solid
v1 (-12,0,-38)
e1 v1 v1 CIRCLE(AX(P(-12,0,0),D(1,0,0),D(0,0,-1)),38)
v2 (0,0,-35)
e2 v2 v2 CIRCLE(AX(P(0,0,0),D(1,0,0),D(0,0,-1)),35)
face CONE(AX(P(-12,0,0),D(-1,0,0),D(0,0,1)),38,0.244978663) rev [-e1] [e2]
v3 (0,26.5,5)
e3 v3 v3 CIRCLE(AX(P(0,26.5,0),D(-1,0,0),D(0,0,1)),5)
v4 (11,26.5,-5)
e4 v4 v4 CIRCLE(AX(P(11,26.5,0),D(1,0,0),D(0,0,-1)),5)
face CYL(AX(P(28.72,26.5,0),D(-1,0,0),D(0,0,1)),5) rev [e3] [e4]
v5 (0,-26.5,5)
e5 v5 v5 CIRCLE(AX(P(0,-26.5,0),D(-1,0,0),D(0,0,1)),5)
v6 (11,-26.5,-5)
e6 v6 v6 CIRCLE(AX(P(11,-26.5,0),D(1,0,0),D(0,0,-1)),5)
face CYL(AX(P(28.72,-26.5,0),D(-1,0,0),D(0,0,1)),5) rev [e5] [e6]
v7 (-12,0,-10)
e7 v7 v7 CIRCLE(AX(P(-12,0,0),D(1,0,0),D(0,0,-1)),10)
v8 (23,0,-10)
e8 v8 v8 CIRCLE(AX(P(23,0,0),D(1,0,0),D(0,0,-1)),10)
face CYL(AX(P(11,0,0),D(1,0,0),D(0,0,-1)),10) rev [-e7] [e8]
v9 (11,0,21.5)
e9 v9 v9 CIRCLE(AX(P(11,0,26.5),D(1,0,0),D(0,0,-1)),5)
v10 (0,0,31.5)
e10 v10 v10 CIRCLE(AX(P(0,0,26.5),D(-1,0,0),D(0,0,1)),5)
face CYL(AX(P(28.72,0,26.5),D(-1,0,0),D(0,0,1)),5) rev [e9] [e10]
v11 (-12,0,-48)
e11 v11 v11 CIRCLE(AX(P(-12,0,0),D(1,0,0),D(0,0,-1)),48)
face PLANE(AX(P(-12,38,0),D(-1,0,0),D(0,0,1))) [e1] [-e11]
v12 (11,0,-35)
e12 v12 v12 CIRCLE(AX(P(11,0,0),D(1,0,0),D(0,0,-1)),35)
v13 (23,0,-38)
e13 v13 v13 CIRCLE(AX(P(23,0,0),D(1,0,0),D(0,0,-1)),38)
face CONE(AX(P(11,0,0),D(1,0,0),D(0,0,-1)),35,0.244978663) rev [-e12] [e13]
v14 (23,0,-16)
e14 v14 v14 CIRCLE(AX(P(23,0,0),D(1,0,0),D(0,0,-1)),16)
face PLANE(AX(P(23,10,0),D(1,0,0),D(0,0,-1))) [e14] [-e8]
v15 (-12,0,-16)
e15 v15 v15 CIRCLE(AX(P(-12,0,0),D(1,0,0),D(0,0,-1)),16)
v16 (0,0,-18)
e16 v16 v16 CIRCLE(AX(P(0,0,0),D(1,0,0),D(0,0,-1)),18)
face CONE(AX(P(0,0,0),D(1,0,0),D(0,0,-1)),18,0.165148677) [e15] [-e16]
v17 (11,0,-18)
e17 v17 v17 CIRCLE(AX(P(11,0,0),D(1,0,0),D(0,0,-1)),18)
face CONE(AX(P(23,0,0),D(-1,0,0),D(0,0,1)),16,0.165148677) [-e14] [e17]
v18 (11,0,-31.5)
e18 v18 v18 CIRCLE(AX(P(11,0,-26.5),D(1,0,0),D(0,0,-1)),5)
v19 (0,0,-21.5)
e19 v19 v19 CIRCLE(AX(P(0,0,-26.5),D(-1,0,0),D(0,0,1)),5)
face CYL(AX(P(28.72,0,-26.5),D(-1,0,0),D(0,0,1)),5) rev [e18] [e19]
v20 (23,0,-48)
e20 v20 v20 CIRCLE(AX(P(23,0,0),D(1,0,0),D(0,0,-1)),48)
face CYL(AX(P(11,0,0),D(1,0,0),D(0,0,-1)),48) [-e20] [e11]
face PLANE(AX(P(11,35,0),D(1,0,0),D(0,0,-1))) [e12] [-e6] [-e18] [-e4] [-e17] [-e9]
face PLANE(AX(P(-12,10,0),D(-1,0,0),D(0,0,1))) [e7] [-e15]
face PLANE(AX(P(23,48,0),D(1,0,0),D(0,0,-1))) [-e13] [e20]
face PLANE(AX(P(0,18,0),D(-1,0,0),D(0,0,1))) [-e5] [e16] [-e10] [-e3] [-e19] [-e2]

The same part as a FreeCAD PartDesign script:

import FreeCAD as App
import Part
import Sketcher
from FreeCAD import Vector
Q = App.Units.Quantity


def add_polygon(sketch, points):
    """Adds a closed chain of lines whose ends are joined by coincident constraints."""
    first, n = sketch.GeometryCount, len(points)
    for a, b in zip(points, points[1:] + points[:1]):
        sketch.addGeometry(Part.LineSegment(App.Vector(*a, 0), App.Vector(*b, 0)), False)
    for i in range(n):
        sketch.addConstraint(Sketcher.Constraint("Coincident", first + i, 2, first + (i + 1) % n, 1))

doc = App.newDocument("Part")
body = doc.addObject("PartDesign::Body", "Body")

sketch1 = body.newObject("Sketcher::SketchObject", "Sketch")
sketch1.AttachmentSupport = (doc.getObject("XY_Plane"), [""])
sketch1.MapMode = "FlatFace"
add_polygon(sketch1, [(0, 10), (0, 0), (11, 0), (11, 10), (23, 10), (23, 16), (11, 18), (11, 35), (23, 38), (23, 48), (-12, 48), (-12, 38), (0, 35), (0, 18), (-12, 16), (-12, 10)])
sketch1.addConstraint([
    Sketcher.Constraint("Vertical", 0),
    Sketcher.Constraint("Horizontal", 1),
    Sketcher.Constraint("Vertical", 2),
    Sketcher.Constraint("Horizontal", 3),
    Sketcher.Constraint("Vertical", 4),
    Sketcher.Constraint("Vertical", 6),
    Sketcher.Constraint("Vertical", 8),
    Sketcher.Constraint("Horizontal", 9),
    Sketcher.Constraint("Vertical", 10),
    Sketcher.Constraint("Vertical", 12),
    Sketcher.Constraint("Vertical", 14),
    Sketcher.Constraint("Horizontal", 15),
    Sketcher.Constraint("Coincident", 0, 2, -1, 1),
    Sketcher.Constraint("PointOnObject", 11, 2, -2),
    Sketcher.Constraint("Horizontal", 7, 2, 10, 2),
    Sketcher.Constraint("Horizontal", 6, 2, 11, 2),
    Sketcher.Constraint("Horizontal", 5, 2, 12, 2),
    Sketcher.Constraint("Horizontal", 4, 2, 13, 2),
    Sketcher.Constraint("Horizontal", 3, 2, 14, 2),
    Sketcher.Constraint("Vertical", 2, 2, 5, 2),
    Sketcher.Constraint("Vertical", 4, 2, 7, 2),
    Sketcher.Constraint("Vertical", 10, 2, 13, 2),
    Sketcher.Constraint("Equal", 3, 15),
    Sketcher.Constraint("Equal", 2, 8),
    Sketcher.Constraint("DistanceX", 1, 1, 1, 2, Q("11 mm")),
    Sketcher.Constraint("DistanceX", 3, 1, 3, 2, Q("12 mm")),
    Sketcher.Constraint("DistanceY", 0, 2, 0, 1, Q("10 mm")),
    Sketcher.Constraint("DistanceY", 4, 1, 4, 2, Q("6 mm")),
    Sketcher.Constraint("DistanceY", 6, 1, 6, 2, Q("17 mm")),
    Sketcher.Constraint("DistanceY", -1, 1, 5, 2, Q("18 mm")),
    Sketcher.Constraint("DistanceY", -1, 1, 7, 2, Q("38 mm")),
])
revolution = body.newObject("PartDesign::Revolution", "Revolution")
revolution.Profile = sketch1
revolution.ReferenceAxis = (sketch1, ["H_Axis"])
revolution.Angle = 360

sketch2 = body.newObject("Sketcher::SketchObject", "Sketch001")
sketch2.AttachmentSupport = (doc.getObject("YZ_Plane"), [""])
sketch2.MapMode = "FlatFace"
sketch2.AttachmentOffset = App.Placement(Vector(0, 0, -29.72), App.Rotation())
sketch2.addGeometry(Part.Circle(Vector(0, 0, 0), Vector(0, 0, 1), 10), False)
sketch2.addConstraint([
    Sketcher.Constraint("Coincident", 0, 3, -1, 1),
    Sketcher.Constraint("Diameter", 0, Q("20 mm")),
])
pocket1 = body.newObject("PartDesign::Pocket", "Pocket")
pocket1.Profile = sketch2
pocket1.Length = 40.72
pocket1.Reversed = True

sketch3 = body.newObject("Sketcher::SketchObject", "Sketch002")
sketch3.AttachmentSupport = (doc.getObject("YZ_Plane"), [""])
sketch3.MapMode = "FlatFace"
sketch3.AttachmentOffset = App.Placement(Vector(0, 0, -12), App.Rotation())
sketch3.addGeometry([
    Part.Circle(Vector(26.5, 0, 0), Vector(0, 0, 1), 5),
    Part.Circle(Vector(0, 26.5, 0), Vector(0, 0, 1), 5),
    Part.Circle(Vector(-26.5, 0, 0), Vector(0, 0, 1), 5),
    Part.Circle(Vector(0, -26.5, 0), Vector(0, 0, 1), 5),
], False)
sketch3.addConstraint([
    Sketcher.Constraint("Equal", 0, 1),
    Sketcher.Constraint("Equal", 1, 2),
    Sketcher.Constraint("Equal", 2, 3),
    Sketcher.Constraint("Symmetric", 0, 3, 2, 3, -1, 1),
    Sketcher.Constraint("Symmetric", 1, 3, 3, 3, -1, 1),
    Sketcher.Constraint("PointOnObject", 0, 3, -1),
    Sketcher.Constraint("PointOnObject", 1, 3, -2),
    Sketcher.Constraint("Diameter", 0, Q("10 mm")),
    Sketcher.Constraint("DistanceX", 2, 3, 0, 3, Q("53 mm")),
    Sketcher.Constraint("DistanceY", 3, 3, 1, 3, Q("53 mm")),
])
pocket2 = body.newObject("PartDesign::Pocket", "Pocket001")
pocket2.Profile = sketch3
pocket2.Length = 40.72
pocket2.Reversed = True

doc.recompute()
